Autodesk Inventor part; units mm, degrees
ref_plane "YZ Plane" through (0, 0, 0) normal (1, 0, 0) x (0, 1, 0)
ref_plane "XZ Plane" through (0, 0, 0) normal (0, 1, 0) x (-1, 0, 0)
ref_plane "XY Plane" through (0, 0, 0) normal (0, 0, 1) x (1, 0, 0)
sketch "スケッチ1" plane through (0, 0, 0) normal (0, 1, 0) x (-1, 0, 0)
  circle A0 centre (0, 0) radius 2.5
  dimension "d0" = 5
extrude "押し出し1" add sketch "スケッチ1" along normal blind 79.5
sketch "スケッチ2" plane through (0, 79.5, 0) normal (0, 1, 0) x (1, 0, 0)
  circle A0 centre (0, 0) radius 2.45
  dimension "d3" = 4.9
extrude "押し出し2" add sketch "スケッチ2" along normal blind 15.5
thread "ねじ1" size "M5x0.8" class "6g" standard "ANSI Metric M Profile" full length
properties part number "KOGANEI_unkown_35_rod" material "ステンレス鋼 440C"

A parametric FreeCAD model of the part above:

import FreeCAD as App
import Part
import Sketcher
from FreeCAD import Vector
Q = App.Units.Quantity

doc = App.newDocument("Part")
body = doc.addObject("PartDesign::Body", "Body")

# Sketch on XZ plane
sketch1 = body.newObject("Sketcher::SketchObject", "Sketch")
sketch1.AttachmentSupport = (doc.getObject("XZ_Plane"), [""])
sketch1.MapMode = "FlatFace"
sketch1.addGeometry(Part.Circle(Vector(0, 0, 0), Vector(0, 0, 1), 2.5), False)
sketch1.addConstraint([
    Sketcher.Constraint("Coincident", 0, 3, -1, 1),
    Sketcher.Constraint("Diameter", 0, Q("5 mm")),
])
pad1 = body.newObject("PartDesign::Pad", "Pad")
pad1.Profile = sketch1
pad1.Length = 79.5
pad1.Reversed = True

# Sketch on XZ plane
sketch2 = body.newObject("Sketcher::SketchObject", "Sketch001")
sketch2.AttachmentSupport = (doc.getObject("XZ_Plane"), [""])
sketch2.MapMode = "FlatFace"
sketch2.AttachmentOffset = App.Placement(Vector(0, 0, -79.5), App.Rotation())
sketch2.addGeometry(Part.Circle(Vector(0, 0, 0), Vector(0, 0, 1), 2.5), False)
sketch2.addConstraint([
    Sketcher.Constraint("Coincident", 0, 3, -1, 1),
    Sketcher.Constraint("Diameter", 0, Q("4.9 mm")),
])
pad2 = body.newObject("PartDesign::Pad", "Pad001")
pad2.Profile = sketch2
pad2.Length = 15.5
pad2.Reversed = True

doc.recompute()
